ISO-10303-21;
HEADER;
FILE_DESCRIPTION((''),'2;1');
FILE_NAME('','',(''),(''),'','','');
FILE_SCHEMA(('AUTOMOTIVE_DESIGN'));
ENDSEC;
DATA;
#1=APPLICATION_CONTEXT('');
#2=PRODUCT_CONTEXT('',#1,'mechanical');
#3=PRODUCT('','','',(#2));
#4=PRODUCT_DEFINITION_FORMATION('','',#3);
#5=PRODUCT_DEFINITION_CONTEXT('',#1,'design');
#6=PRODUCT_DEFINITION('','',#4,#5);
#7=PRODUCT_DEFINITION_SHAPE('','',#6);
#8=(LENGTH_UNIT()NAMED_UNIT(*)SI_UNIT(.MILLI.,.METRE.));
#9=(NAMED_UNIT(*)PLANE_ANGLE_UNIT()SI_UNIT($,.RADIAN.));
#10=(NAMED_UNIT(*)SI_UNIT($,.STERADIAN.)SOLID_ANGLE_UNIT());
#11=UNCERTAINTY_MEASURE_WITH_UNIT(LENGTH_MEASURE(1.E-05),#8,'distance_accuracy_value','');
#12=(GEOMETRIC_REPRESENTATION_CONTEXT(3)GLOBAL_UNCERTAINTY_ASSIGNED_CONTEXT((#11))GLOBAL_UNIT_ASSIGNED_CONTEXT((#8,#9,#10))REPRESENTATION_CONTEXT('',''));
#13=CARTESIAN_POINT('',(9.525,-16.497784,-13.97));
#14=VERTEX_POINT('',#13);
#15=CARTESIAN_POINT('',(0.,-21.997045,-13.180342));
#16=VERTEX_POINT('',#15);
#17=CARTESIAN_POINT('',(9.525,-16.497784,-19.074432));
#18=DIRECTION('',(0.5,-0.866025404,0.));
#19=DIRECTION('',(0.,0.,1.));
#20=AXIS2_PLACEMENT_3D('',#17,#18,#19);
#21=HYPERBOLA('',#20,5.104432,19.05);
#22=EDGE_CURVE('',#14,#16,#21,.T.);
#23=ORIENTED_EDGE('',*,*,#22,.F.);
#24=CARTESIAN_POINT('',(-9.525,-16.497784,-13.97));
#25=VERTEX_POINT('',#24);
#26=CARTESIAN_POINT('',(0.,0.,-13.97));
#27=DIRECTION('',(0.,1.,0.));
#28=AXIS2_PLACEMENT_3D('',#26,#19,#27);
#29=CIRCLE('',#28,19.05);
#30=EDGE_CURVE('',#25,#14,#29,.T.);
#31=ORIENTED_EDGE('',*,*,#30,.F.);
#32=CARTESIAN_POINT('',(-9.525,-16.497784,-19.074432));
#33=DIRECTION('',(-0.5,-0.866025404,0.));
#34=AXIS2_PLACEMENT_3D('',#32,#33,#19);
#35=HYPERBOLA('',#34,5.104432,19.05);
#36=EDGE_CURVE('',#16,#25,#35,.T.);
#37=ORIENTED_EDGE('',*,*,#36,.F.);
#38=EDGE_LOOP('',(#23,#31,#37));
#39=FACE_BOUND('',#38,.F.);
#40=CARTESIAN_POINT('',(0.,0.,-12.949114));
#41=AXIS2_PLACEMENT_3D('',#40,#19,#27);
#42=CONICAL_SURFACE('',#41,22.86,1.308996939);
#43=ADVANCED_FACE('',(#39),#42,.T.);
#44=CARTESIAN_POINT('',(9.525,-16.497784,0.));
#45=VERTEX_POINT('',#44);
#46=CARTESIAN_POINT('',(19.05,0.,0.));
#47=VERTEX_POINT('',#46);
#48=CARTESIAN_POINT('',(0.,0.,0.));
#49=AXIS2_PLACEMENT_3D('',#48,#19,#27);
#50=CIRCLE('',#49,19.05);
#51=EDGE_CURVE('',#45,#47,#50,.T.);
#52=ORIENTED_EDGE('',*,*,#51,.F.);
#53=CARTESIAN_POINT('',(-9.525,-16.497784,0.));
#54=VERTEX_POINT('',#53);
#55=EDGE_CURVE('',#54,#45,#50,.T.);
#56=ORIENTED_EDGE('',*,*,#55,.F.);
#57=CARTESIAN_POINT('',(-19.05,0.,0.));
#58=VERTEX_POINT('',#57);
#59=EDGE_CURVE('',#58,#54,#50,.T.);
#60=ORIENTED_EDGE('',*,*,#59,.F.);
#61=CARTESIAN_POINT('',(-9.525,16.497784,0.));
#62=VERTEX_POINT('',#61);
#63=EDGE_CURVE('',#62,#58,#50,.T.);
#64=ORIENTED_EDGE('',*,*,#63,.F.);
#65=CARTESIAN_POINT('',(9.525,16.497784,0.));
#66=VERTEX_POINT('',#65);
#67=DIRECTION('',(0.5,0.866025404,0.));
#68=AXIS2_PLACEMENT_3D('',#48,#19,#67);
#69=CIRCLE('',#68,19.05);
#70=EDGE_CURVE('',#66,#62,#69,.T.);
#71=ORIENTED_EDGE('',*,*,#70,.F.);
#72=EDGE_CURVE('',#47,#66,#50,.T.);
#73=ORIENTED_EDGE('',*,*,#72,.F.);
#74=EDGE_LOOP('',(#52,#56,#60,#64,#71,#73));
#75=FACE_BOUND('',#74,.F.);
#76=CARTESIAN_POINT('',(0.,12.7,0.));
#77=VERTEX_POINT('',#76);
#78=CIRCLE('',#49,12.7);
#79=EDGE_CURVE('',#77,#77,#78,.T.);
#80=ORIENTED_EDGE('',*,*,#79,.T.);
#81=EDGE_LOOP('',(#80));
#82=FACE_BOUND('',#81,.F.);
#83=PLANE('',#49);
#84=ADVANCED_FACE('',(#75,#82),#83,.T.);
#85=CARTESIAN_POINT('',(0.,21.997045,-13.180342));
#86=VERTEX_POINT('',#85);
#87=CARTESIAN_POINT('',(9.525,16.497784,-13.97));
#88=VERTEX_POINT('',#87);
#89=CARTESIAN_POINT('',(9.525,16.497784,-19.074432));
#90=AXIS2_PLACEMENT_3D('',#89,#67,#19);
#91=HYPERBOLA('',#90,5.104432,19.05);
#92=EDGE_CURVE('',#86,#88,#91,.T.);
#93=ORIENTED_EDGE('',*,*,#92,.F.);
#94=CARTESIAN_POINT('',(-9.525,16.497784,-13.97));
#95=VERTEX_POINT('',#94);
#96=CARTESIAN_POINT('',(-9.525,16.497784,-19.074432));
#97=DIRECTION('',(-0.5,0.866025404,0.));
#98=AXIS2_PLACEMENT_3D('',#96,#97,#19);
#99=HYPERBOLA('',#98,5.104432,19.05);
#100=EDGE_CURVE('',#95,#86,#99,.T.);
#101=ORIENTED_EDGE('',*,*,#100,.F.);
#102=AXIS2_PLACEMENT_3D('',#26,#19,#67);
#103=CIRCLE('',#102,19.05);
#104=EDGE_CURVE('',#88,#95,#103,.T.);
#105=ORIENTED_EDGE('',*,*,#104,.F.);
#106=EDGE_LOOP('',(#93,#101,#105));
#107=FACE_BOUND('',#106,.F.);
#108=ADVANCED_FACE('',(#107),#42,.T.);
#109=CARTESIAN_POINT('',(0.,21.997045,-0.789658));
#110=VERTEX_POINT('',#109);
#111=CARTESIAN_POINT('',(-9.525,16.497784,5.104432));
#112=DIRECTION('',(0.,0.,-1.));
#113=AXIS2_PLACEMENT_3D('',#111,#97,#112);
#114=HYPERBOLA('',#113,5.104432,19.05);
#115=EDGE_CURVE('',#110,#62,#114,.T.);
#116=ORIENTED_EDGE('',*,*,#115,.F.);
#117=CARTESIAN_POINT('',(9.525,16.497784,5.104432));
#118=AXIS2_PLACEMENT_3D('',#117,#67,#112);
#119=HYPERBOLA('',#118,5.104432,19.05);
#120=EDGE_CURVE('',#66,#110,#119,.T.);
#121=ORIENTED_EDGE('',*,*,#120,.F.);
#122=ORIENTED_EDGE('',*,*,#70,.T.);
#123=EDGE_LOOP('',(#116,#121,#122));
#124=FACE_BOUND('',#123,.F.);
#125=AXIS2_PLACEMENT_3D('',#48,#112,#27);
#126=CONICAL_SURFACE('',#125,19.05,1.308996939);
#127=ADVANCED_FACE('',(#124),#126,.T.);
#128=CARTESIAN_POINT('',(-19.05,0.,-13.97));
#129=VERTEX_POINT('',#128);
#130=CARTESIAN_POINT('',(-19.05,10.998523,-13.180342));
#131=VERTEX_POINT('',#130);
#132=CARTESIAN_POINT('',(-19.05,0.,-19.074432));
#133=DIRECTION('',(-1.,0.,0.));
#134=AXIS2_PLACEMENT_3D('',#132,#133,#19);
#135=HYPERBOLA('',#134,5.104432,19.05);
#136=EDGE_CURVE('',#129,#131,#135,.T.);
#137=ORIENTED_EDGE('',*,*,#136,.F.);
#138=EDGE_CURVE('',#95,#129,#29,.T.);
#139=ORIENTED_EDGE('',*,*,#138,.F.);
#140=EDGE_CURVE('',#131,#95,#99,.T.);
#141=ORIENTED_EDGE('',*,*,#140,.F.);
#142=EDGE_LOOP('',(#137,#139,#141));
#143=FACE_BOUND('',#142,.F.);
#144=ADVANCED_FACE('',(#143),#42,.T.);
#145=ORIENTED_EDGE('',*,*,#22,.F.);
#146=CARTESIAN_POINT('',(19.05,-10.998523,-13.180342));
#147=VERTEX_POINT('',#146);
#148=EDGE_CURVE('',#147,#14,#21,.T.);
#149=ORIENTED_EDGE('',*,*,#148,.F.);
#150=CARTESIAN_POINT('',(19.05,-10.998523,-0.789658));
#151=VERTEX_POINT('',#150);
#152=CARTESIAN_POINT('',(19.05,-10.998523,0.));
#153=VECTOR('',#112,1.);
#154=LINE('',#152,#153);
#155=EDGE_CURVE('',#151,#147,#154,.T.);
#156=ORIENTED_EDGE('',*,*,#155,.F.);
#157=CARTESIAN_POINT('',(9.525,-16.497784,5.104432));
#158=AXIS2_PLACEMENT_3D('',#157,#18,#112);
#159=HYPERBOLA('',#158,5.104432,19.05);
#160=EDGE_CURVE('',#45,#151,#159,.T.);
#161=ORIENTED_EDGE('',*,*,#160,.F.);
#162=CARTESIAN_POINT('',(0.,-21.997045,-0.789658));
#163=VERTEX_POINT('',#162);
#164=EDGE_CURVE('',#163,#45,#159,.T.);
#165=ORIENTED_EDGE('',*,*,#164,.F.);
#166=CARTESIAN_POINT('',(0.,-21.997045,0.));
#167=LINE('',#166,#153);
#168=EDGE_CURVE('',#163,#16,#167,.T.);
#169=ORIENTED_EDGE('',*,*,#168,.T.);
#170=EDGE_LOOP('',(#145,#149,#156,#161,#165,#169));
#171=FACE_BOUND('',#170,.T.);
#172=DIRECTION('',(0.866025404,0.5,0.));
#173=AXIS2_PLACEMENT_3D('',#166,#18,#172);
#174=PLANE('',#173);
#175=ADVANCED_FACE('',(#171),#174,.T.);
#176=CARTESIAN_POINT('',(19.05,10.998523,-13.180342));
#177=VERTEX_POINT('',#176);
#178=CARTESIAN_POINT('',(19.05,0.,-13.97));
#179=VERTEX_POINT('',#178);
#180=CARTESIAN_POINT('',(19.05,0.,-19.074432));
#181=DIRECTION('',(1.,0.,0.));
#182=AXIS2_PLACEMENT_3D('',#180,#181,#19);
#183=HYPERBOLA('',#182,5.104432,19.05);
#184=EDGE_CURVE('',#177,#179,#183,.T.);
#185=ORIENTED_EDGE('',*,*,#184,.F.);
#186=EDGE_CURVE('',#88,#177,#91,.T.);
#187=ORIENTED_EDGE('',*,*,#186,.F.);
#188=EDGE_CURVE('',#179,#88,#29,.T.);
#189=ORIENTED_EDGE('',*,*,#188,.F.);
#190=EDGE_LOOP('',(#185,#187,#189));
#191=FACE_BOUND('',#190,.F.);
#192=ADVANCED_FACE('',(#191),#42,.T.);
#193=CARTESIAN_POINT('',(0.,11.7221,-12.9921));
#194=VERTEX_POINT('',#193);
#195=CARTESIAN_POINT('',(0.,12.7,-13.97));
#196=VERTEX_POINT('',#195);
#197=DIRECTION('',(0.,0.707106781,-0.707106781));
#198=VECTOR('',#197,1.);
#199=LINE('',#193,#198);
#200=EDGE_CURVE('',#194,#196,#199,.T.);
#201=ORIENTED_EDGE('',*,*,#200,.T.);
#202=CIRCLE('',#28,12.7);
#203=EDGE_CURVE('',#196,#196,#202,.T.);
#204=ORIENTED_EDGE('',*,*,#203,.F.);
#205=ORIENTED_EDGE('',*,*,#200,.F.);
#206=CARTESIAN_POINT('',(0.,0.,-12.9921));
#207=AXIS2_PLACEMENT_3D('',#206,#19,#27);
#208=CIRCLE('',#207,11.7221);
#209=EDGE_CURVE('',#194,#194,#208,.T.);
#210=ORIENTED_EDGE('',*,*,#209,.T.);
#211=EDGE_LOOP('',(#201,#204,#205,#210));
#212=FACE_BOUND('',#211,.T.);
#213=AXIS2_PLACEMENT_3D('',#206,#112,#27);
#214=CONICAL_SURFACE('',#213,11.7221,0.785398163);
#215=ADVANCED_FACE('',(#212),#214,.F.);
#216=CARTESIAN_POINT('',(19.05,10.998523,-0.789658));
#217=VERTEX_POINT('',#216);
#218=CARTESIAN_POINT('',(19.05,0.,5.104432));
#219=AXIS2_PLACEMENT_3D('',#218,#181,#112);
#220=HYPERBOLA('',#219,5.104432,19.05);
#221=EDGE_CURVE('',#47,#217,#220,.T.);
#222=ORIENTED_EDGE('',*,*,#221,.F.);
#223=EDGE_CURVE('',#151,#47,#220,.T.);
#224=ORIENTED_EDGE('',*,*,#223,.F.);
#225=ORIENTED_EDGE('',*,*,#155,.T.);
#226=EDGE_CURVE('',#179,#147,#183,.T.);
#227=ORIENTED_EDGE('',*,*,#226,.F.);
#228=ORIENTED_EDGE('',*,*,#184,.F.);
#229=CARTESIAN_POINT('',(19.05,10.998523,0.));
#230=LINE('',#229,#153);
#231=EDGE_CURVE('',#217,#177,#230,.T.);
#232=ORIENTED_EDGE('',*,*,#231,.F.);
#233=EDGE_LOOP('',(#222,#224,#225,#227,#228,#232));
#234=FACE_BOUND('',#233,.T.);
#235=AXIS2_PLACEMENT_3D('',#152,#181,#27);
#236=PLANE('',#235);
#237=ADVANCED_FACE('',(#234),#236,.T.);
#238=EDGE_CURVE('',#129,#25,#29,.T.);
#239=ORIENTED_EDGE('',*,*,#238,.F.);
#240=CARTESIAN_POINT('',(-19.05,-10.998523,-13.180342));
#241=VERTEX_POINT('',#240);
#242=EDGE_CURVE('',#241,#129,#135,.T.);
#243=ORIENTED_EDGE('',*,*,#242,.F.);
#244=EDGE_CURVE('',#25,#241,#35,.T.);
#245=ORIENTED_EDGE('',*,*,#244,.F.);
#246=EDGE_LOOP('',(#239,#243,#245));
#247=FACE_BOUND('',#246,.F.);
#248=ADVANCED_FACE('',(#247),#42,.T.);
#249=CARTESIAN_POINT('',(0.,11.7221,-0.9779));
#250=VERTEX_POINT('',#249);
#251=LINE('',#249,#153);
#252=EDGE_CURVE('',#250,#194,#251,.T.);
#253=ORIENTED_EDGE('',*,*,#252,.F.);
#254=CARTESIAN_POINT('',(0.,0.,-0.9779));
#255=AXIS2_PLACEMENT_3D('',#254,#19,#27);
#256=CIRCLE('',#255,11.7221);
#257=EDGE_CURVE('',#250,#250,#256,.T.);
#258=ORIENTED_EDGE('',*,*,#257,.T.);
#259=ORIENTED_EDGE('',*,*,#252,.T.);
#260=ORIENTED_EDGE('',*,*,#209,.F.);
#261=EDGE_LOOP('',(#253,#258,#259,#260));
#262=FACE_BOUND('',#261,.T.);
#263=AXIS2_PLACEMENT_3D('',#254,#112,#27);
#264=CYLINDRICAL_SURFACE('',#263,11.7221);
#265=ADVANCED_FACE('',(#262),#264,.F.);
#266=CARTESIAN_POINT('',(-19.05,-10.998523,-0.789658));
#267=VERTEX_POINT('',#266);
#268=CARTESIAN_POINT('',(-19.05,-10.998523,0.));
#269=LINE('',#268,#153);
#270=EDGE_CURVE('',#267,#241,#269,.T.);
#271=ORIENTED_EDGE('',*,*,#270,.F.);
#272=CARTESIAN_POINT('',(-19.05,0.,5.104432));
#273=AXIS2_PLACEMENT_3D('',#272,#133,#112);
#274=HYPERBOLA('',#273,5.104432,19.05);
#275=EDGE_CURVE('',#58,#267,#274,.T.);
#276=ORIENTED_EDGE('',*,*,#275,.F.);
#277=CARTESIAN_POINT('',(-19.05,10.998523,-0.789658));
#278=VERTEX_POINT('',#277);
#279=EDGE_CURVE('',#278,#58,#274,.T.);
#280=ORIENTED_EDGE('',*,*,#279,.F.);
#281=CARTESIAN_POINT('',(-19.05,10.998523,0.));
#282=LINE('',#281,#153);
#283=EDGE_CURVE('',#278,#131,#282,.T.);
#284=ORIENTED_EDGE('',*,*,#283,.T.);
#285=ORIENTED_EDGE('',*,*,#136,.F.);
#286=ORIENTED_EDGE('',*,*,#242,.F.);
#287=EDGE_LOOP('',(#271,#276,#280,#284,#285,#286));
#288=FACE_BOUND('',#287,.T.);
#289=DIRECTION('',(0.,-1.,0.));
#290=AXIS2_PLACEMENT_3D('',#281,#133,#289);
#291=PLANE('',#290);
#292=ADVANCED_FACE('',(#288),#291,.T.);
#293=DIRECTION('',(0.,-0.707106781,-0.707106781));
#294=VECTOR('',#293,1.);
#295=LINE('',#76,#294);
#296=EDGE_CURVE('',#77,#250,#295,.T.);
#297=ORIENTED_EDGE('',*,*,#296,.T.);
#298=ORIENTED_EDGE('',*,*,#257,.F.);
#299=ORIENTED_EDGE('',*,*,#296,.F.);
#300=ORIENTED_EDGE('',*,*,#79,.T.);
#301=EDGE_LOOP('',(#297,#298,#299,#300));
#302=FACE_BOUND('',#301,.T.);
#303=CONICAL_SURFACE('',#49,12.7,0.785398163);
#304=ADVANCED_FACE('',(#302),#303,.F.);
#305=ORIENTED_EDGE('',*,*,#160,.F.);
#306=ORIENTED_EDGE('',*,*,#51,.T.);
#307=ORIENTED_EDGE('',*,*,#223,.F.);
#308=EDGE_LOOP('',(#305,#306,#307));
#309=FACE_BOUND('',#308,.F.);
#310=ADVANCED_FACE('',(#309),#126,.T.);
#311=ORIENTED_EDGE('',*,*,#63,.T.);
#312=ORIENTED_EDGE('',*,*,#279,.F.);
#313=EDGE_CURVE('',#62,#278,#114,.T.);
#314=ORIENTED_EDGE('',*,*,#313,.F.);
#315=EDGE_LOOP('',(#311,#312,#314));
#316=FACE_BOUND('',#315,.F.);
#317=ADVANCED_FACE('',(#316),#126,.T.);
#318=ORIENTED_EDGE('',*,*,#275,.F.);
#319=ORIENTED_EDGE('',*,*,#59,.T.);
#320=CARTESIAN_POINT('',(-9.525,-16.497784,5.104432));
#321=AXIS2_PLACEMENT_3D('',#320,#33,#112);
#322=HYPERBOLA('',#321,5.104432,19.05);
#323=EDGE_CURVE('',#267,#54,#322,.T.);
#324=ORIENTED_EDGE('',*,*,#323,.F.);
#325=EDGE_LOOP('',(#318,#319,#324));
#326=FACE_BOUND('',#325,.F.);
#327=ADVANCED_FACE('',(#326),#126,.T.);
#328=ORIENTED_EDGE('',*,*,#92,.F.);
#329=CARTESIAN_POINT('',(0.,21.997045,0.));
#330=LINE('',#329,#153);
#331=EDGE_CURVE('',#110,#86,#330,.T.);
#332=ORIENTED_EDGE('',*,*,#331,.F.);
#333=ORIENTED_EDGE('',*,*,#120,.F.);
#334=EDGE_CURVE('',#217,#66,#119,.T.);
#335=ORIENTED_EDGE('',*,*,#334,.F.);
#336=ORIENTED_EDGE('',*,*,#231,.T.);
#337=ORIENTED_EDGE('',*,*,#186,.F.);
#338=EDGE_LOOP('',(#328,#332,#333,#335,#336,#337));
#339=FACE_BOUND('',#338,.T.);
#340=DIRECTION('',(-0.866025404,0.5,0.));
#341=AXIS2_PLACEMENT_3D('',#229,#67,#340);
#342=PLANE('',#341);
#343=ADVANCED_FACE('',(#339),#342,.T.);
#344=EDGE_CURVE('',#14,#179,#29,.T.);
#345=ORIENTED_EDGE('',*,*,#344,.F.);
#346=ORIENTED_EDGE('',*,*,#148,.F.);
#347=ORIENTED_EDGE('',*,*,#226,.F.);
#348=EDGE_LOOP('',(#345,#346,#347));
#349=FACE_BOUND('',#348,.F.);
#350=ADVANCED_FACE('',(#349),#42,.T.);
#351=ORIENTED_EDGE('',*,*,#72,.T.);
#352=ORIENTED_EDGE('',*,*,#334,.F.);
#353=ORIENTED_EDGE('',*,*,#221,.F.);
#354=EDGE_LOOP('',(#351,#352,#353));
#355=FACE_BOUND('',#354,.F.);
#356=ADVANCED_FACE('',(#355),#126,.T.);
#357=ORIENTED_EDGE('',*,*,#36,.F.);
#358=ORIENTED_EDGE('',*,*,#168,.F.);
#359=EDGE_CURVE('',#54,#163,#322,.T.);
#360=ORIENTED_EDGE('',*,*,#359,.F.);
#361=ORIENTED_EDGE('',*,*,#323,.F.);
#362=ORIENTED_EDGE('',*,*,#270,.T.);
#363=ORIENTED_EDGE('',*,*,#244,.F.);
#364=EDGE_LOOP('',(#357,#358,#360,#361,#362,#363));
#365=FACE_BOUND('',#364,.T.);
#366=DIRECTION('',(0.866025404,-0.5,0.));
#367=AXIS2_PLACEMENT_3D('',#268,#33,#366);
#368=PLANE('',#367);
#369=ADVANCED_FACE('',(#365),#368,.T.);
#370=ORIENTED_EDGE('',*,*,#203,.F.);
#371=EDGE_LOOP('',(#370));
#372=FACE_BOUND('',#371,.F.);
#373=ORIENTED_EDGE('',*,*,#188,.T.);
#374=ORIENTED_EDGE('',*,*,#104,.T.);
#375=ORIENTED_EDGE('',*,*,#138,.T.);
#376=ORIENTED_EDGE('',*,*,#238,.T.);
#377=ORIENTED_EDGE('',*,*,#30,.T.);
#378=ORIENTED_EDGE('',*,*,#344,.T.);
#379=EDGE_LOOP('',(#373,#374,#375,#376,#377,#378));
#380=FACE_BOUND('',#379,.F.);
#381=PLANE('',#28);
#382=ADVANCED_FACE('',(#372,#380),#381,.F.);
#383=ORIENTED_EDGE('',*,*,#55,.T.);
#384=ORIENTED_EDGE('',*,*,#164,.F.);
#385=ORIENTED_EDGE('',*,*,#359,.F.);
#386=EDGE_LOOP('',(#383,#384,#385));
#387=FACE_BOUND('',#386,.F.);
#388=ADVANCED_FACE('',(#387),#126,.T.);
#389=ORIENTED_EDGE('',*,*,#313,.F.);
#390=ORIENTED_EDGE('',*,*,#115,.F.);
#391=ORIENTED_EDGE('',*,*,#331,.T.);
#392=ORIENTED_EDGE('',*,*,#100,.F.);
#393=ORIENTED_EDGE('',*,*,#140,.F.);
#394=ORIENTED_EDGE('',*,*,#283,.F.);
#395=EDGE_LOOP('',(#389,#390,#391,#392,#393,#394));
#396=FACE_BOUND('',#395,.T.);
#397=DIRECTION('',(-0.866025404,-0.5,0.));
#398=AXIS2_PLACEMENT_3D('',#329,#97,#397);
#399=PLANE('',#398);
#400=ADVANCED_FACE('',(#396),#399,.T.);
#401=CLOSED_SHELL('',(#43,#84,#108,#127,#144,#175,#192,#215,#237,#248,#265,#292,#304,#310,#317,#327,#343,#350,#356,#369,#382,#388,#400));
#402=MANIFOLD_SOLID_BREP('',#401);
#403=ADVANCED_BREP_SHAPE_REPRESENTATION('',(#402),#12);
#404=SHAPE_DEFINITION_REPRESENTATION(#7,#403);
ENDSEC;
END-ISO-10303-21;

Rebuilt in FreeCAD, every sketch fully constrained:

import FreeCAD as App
import Part
import Sketcher

V = App.Vector
Q = App.Units.Quantity

doc = App.newDocument("Part")
body = doc.addObject("PartDesign::Body", "Body")

# Sketch on YZ plane
sketch1 = body.newObject("Sketcher::SketchObject", "Sketch")
sketch1.AttachmentSupport = (doc.getObject("YZ_Plane"), [""])
sketch1.MapMode = "FlatFace"
sketch1.addGeometry([
    Part.LineSegment(V(19.1, 0, 0), V(0, 0, 0)),  # 0
    Part.LineSegment(V(0, 0, 0), V(0, -14, 0)),  # 1
    Part.LineSegment(V(0, -14, 0), V(19.1, -14, 0)),  # 2
    Part.LineSegment(V(19.1, -14, 0), V(22.9, -12.9, 0)),  # 3
    Part.LineSegment(V(22.9, -12.9, 0), V(22.9, -1, 0)),  # 4
    Part.LineSegment(V(22.9, -1, 0), V(19.1, 0, 0)),  # 5
], False)
sketch1.addConstraint([
    Sketcher.Constraint("Coincident", 0, 2, 1, 1),
    Sketcher.Constraint("Coincident", 1, 2, 2, 1),
    Sketcher.Constraint("Coincident", 2, 2, 3, 1),
    Sketcher.Constraint("Coincident", 3, 2, 4, 1),
    Sketcher.Constraint("Coincident", 4, 2, 5, 1),
    Sketcher.Constraint("Coincident", 5, 2, 0, 1),
    Sketcher.Constraint("Horizontal", 0),
    Sketcher.Constraint("Vertical", 1),
    Sketcher.Constraint("Horizontal", 2),
    Sketcher.Constraint("Vertical", 4),
    Sketcher.Constraint("Coincident", 0, 2, -1, 1),
    Sketcher.Constraint("Vertical", 2, 2, 5, 2),
    Sketcher.Constraint("Equal", 3, 5),
    Sketcher.Constraint("Angle", 3, Q("15 deg")),
    Sketcher.Constraint("DistanceX", 0, 2, 0, 1, Q("0.75 in")),
    Sketcher.Constraint("DistanceY", 1, 2, 1, 1, Q("0.55 in")),
    Sketcher.Constraint("DistanceX", -1, 1, 3, 2, Q("0.9 in")),
])
revolution = body.newObject("PartDesign::Revolution", "Revolution")
revolution.Profile = sketch1
revolution.ReferenceAxis = (sketch1, ["V_Axis"])
revolution.Angle = 360

# Sketch on XY plane
sketch2 = body.newObject("Sketcher::SketchObject", "Sketch001")
sketch2.AttachmentSupport = (doc.getObject("XY_Plane"), [""])
sketch2.MapMode = "FlatFace"
sketch2.addGeometry([
    Part.LineSegment(V(-38, 38, 0), V(-38, -38, 0)),  # 0
    Part.LineSegment(V(-38, -38, 0), V(38, -38, 0)),  # 1
    Part.LineSegment(V(38, -38, 0), V(38, 38, 0)),  # 2
    Part.LineSegment(V(38, 38, 0), V(-38, 38, 0)),  # 3
    Part.LineSegment(V(-19, -11, 0), V(-19, 11, 0)),  # 4
    Part.LineSegment(V(-19, 11, 0), V(0, 22, 0)),  # 5
    Part.LineSegment(V(0, 22, 0), V(19, 11, 0)),  # 6
    Part.LineSegment(V(19, 11, 0), V(19, -11, 0)),  # 7
    Part.LineSegment(V(19, -11, 0), V(0, -22, 0)),  # 8
    Part.LineSegment(V(0, -22, 0), V(-19, -11, 0)),  # 9
], False)
sketch2.addConstraint([
    Sketcher.Constraint("Coincident", 0, 2, 1, 1),
    Sketcher.Constraint("Coincident", 1, 2, 2, 1),
    Sketcher.Constraint("Coincident", 2, 2, 3, 1),
    Sketcher.Constraint("Coincident", 3, 2, 0, 1),
    Sketcher.Constraint("Coincident", 4, 2, 5, 1),
    Sketcher.Constraint("Coincident", 5, 2, 6, 1),
    Sketcher.Constraint("Coincident", 6, 2, 7, 1),
    Sketcher.Constraint("Coincident", 7, 2, 8, 1),
    Sketcher.Constraint("Coincident", 8, 2, 9, 1),
    Sketcher.Constraint("Coincident", 9, 2, 4, 1),
    Sketcher.Constraint("Vertical", 0),
    Sketcher.Constraint("Horizontal", 1),
    Sketcher.Constraint("Vertical", 2),
    Sketcher.Constraint("Horizontal", 3),
    Sketcher.Constraint("Vertical", 4),
    Sketcher.Constraint("Vertical", 7),
    Sketcher.Constraint("Symmetric", 0, 2, 2, 2, -1, 1),
    Sketcher.Constraint("Symmetric", 4, 2, 7, 2, -1, 1),
    Sketcher.Constraint("Symmetric", 5, 2, 8, 2, -1, 1),
    Sketcher.Constraint("PointOnObject", 5, 2, -2),
    Sketcher.Constraint("Parallel", 6, 9),
    Sketcher.Constraint("Horizontal", 4, 2, 6, 2),
    Sketcher.Constraint("Equal", 3, 0),
    Sketcher.Constraint("DistanceX", 1, 1, 1, 2, Q("3 in")),
    Sketcher.Constraint("Angle", 5, Q("30 deg")),
    Sketcher.Constraint("DistanceX", 4, 2, 6, 2, Q("1.5 in")),
    Sketcher.Constraint("DistanceY", 4, 1, 4, 2, Q("21.997045 mm")),
])
pocket1 = body.newObject("PartDesign::Pocket", "Pocket")
pocket1.Profile = sketch2
pocket1.Length = Q("0.55 in")

# Sketch on YZ plane
sketch3 = body.newObject("Sketcher::SketchObject", "Sketch002")
sketch3.AttachmentSupport = (doc.getObject("YZ_Plane"), [""])
sketch3.MapMode = "FlatFace"
sketch3.addGeometry([
    Part.LineSegment(V(12.7, 0, 0), V(0, 0, 0)),  # 0
    Part.LineSegment(V(0, 0, 0), V(0, -14, 0)),  # 1
    Part.LineSegment(V(0, -14, 0), V(12.7, -14, 0)),  # 2
    Part.LineSegment(V(12.7, -14, 0), V(11.7, -13, 0)),  # 3
    Part.LineSegment(V(11.7, -13, 0), V(11.7, -1, 0)),  # 4
    Part.LineSegment(V(11.7, -1, 0), V(12.7, 0, 0)),  # 5
], False)
sketch3.addConstraint([
    Sketcher.Constraint("Coincident", 0, 2, 1, 1),
    Sketcher.Constraint("Coincident", 1, 2, 2, 1),
    Sketcher.Constraint("Coincident", 2, 2, 3, 1),
    Sketcher.Constraint("Coincident", 3, 2, 4, 1),
    Sketcher.Constraint("Coincident", 4, 2, 5, 1),
    Sketcher.Constraint("Coincident", 5, 2, 0, 1),
    Sketcher.Constraint("Horizontal", 0),
    Sketcher.Constraint("Vertical", 1),
    Sketcher.Constraint("Horizontal", 2),
    Sketcher.Constraint("Vertical", 4),
    Sketcher.Constraint("Coincident", 0, 2, -1, 1),
    Sketcher.Constraint("Perpendicular", 3, 5),
    Sketcher.Constraint("Vertical", 2, 2, 5, 2),
    Sketcher.Constraint("Equal", 3, 5),
    Sketcher.Constraint("DistanceX", 0, 2, 0, 1, Q("0.5 in")),
    Sketcher.Constraint("DistanceY", 1, 2, 1, 1, Q("0.55 in")),
    Sketcher.Constraint("DistanceY", 4, 1, 4, 2, Q("0.473 in")),
])
groove = body.newObject("PartDesign::Groove", "Groove")
groove.Profile = sketch3
groove.ReferenceAxis = (sketch3, ["V_Axis"])
groove.Angle = 360

doc.recompute()
